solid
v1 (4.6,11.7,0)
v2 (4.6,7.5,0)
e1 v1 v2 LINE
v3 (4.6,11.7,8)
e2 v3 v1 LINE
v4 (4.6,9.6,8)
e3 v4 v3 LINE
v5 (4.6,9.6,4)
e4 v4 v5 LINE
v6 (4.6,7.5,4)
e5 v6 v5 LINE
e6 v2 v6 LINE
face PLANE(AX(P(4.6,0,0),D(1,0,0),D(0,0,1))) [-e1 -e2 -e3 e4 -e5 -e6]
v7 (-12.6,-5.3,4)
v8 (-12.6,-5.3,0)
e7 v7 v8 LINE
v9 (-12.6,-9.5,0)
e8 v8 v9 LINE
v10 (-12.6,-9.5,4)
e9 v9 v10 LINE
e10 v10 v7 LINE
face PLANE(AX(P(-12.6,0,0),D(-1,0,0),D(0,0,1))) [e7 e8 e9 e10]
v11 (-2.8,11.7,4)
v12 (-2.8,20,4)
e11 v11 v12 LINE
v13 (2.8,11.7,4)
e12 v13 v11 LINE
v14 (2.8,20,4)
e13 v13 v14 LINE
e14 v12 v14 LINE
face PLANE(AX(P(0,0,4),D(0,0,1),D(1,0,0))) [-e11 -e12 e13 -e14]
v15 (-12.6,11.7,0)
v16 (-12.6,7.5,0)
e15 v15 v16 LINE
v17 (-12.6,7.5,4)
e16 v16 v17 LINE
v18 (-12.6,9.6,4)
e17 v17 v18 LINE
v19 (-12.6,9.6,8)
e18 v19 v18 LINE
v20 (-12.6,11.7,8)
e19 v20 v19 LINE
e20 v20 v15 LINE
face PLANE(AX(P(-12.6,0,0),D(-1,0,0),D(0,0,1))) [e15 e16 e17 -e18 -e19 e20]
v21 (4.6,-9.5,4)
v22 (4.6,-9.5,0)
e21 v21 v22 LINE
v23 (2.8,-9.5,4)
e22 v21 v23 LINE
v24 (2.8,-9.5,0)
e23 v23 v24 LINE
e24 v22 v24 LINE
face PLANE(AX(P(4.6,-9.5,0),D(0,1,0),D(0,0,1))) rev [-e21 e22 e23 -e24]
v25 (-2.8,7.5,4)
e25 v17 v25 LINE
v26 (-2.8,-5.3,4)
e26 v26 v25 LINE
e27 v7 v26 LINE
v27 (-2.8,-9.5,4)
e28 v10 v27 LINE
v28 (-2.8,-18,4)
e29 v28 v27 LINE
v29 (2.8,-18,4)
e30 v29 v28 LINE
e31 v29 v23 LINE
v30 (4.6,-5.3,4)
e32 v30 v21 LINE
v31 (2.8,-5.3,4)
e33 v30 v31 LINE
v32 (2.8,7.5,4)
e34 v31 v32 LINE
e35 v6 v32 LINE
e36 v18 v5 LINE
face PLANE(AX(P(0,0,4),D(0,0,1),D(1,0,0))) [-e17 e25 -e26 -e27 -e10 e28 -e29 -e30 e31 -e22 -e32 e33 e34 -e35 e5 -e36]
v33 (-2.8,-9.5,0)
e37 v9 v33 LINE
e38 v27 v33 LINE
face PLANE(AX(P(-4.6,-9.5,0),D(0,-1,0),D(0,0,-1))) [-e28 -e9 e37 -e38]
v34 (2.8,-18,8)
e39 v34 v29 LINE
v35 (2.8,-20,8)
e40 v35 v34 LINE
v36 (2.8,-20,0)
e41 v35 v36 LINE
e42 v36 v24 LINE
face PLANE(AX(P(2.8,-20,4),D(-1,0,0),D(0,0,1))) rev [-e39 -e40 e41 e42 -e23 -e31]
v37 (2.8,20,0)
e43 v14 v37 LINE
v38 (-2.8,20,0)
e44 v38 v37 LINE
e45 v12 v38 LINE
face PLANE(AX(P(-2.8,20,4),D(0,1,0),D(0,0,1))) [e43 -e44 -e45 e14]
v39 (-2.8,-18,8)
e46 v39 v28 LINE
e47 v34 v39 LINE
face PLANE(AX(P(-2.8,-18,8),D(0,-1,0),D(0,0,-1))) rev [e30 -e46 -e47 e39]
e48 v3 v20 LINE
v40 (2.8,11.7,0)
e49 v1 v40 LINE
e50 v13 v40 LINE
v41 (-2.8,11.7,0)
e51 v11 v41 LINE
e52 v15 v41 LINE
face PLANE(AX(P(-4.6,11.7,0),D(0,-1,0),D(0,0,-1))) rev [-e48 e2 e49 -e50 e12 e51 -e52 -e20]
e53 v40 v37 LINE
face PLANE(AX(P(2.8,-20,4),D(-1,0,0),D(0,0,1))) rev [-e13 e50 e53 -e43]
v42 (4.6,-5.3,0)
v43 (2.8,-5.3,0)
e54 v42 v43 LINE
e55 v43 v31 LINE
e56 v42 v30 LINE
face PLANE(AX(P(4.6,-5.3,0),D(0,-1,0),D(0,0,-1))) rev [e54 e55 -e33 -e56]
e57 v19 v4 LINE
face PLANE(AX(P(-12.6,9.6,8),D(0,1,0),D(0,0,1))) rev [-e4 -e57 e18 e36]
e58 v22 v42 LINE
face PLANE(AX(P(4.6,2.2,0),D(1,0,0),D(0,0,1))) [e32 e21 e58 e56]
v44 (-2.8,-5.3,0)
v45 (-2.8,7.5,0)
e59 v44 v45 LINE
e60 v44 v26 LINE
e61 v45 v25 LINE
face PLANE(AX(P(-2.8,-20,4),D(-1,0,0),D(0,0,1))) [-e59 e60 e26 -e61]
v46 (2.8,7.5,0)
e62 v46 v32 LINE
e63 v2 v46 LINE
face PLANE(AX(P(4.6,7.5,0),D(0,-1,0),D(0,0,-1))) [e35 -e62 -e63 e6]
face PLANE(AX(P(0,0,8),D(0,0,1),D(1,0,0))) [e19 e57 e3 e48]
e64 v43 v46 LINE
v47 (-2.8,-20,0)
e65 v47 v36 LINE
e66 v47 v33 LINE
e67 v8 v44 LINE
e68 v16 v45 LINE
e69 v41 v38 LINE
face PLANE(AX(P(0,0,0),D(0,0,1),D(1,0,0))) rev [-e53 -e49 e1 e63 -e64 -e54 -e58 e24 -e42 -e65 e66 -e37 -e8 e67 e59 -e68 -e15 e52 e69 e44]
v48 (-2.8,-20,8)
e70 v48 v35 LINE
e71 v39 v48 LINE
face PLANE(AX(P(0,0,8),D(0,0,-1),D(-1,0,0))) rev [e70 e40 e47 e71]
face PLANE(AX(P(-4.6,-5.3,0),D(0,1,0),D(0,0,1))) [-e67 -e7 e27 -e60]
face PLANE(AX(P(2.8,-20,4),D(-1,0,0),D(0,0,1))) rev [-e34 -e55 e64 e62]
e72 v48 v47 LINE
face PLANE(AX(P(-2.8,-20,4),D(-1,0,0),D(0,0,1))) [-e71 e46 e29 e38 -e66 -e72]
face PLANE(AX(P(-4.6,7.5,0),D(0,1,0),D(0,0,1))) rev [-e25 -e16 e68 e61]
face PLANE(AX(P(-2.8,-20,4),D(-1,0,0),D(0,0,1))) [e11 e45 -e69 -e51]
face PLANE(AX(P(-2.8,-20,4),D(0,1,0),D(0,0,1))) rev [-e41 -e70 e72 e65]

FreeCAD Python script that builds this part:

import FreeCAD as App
import Part
import Sketcher
from FreeCAD import Vector

doc = App.newDocument("Part")
body = doc.addObject("PartDesign::Body", "Body")

# Sketch on XY plane
sketch1 = doc.addObject("Sketcher::SketchObject", "Sketch")
body.addObject(sketch1)
sketch1.AttachmentSupport = (doc.XY_Plane, [""])
sketch1.MapMode = "FlatFace"
sketch1.addGeometry(Part.LineSegment(Vector(-3, 20, 0), Vector(-3, -20, 0)), False)
sketch1.addGeometry(Part.LineSegment(Vector(-3, -20, 0), Vector(3, -20, 0)), False)
sketch1.addGeometry(Part.LineSegment(Vector(3, -20, 0), Vector(3, 20, 0)), False)
sketch1.addGeometry(Part.LineSegment(Vector(3, 20, 0), Vector(-3, 20, 0)), False)
sketch1.addConstraint(Sketcher.Constraint("Coincident", 0, 2, 1, 1))
sketch1.addConstraint(Sketcher.Constraint("Coincident", 1, 2, 2, 1))
sketch1.addConstraint(Sketcher.Constraint("Coincident", 2, 2, 3, 1))
sketch1.addConstraint(Sketcher.Constraint("Coincident", 3, 2, 0, 1))
sketch1.addConstraint(Sketcher.Constraint("Vertical", 0))
sketch1.addConstraint(Sketcher.Constraint("Horizontal", 1))
sketch1.addConstraint(Sketcher.Constraint("Vertical", 2))
sketch1.addConstraint(Sketcher.Constraint("Horizontal", 3))
sketch1.addConstraint(Sketcher.Constraint("Symmetric", 0, 2, 2, 2, -1, 1))
sketch1.addConstraint(Sketcher.Constraint("DistanceY", 0, 2, 0, 1, 40.0))
sketch1.addConstraint(Sketcher.Constraint("DistanceX", 1, 1, 1, 2, 5.6))
pad1 = doc.addObject("PartDesign::Pad", "Pad")
body.addObject(pad1)
pad1.Profile = sketch1
pad1.Length = 4

# Sketch on XY plane
sketch2 = doc.addObject("Sketcher::SketchObject", "Sketch001")
body.addObject(sketch2)
sketch2.AttachmentSupport = (doc.XY_Plane, [""])
sketch2.MapMode = "FlatFace"
sketch2.AttachmentOffset = App.Placement(Vector(0, 0, 4), App.Rotation())
sketch2.addGeometry(Part.LineSegment(Vector(-2.8, -18, 0), Vector(-2.8, -20, 0)), False)
sketch2.addGeometry(Part.LineSegment(Vector(-2.8, -20, 0), Vector(2.8, -20, 0)), False)
sketch2.addGeometry(Part.LineSegment(Vector(2.8, -20, 0), Vector(2.8, -18, 0)), False)
sketch2.addGeometry(Part.LineSegment(Vector(2.8, -18, 0), Vector(-2.8, -18, 0)), False)
sketch2.addConstraint(Sketcher.Constraint("Coincident", 0, 2, 1, 1))
sketch2.addConstraint(Sketcher.Constraint("Coincident", 1, 2, 2, 1))
sketch2.addConstraint(Sketcher.Constraint("Coincident", 2, 2, 3, 1))
sketch2.addConstraint(Sketcher.Constraint("Coincident", 3, 2, 0, 1))
sketch2.addConstraint(Sketcher.Constraint("Vertical", 0))
sketch2.addConstraint(Sketcher.Constraint("Horizontal", 1))
sketch2.addConstraint(Sketcher.Constraint("Vertical", 2))
sketch2.addConstraint(Sketcher.Constraint("Horizontal", 3))
sketch2.addConstraint(Sketcher.Constraint("DistanceY", 0, 2, 0, 1, 2.0))
sketch2.addConstraint(Sketcher.Constraint("DistanceX", 1, 1, 1, 2, 5.6))
sketch2.addConstraint(Sketcher.Constraint("DistanceY", 0, 2, -1, 1, 20.0))
sketch2.addConstraint(Sketcher.Constraint("DistanceX", 0, 2, -1, 1, 2.8))
pad2 = doc.addObject("PartDesign::Pad", "Pad001")
body.addObject(pad2)
pad2.Profile = sketch2
pad2.Length = 4

# Sketch on YZ plane
sketch3 = doc.addObject("Sketcher::SketchObject", "Sketch002")
body.addObject(sketch3)
sketch3.AttachmentSupport = (doc.YZ_Plane, [""])
sketch3.MapMode = "FlatFace"
sketch3.AttachmentOffset = App.Placement(Vector(0, 0, -2.8), App.Rotation())
sketch3.addGeometry(Part.LineSegment(Vector(11.7, 0, 0), Vector(7.5, 0, 0)), False)
sketch3.addGeometry(Part.LineSegment(Vector(7.5, 0, 0), Vector(7.5, 4, 0)), False)
sketch3.addGeometry(Part.LineSegment(Vector(7.5, 4, 0), Vector(11.7, 4, 0)), False)
sketch3.addGeometry(Part.LineSegment(Vector(11.7, 4, 0), Vector(11.7, 0, 0)), False)
sketch3.addConstraint(Sketcher.Constraint("Coincident", 0, 2, 1, 1))
sketch3.addConstraint(Sketcher.Constraint("Coincident", 1, 2, 2, 1))
sketch3.addConstraint(Sketcher.Constraint("Coincident", 2, 2, 3, 1))
sketch3.addConstraint(Sketcher.Constraint("Coincident", 3, 2, 0, 1))
sketch3.addConstraint(Sketcher.Constraint("Horizontal", 0))
sketch3.addConstraint(Sketcher.Constraint("Vertical", 1))
sketch3.addConstraint(Sketcher.Constraint("Horizontal", 2))
sketch3.addConstraint(Sketcher.Constraint("Vertical", 3))
sketch3.addConstraint(Sketcher.Constraint("PointOnObject", 0, 2, -1))
sketch3.addConstraint(Sketcher.Constraint("DistanceY", 1, 1, 1, 2, 4.0))
sketch3.addConstraint(Sketcher.Constraint("DistanceX", 0, 2, 0, 1, 4.2))
sketch3.addConstraint(Sketcher.Constraint("DistanceX", -1, 1, 0, 2, 7.5))
pad3 = doc.addObject("PartDesign::Pad", "Pad002")
body.addObject(pad3)
pad3.Profile = sketch3
pad3.Length = 1.8
pad3.Reversed = True
doc.recompute()

mirrored = doc.addObject("PartDesign::Mirrored", "Mirrored")
body.addObject(mirrored)
mirrored.Originals = [pad3]
mirrored.MirrorPlane = (doc.YZ_Plane, [""])
body.Tip = mirrored
doc.recompute()

datumplane = doc.addObject("PartDesign::Plane", "DatumPlane")
body.addObject(datumplane)
datumplane.AttachmentSupport = (doc.XZ_Plane, [""])
datumplane.MapMode = "FlatFace"
datumplane.AttachmentOffset = App.Placement(Vector(0, 0, -1.1), App.Rotation())
mirrored2 = doc.addObject("PartDesign::Mirrored", "Mirrored001")
body.addObject(mirrored2)
mirrored2.Originals = [pad3]
mirrored2.MirrorPlane = (datumplane, [""])
body.Tip = mirrored2

# Sketch on YZ plane
sketch4 = doc.addObject("Sketcher::SketchObject", "Sketch003")
body.addObject(sketch4)
sketch4.AttachmentSupport = (doc.YZ_Plane, [""])
sketch4.MapMode = "FlatFace"
sketch4.AttachmentOffset = App.Placement(Vector(0, 0, 2.8), App.Rotation())
sketch4.addGeometry(Part.LineSegment(Vector(-9.5, 0, 0), Vector(-5.3, 0, 0)), False)
sketch4.addGeometry(Part.LineSegment(Vector(-5.3, 0, 0), Vector(-5.3, 4, 0)), False)
sketch4.addGeometry(Part.LineSegment(Vector(-5.3, 4, 0), Vector(-9.5, 4, 0)), False)
sketch4.addGeometry(Part.LineSegment(Vector(-9.5, 4, 0), Vector(-9.5, 0, 0)), False)
sketch4.addConstraint(Sketcher.Constraint("Coincident", 0, 2, 1, 1))
sketch4.addConstraint(Sketcher.Constraint("Coincident", 1, 2, 2, 1))
sketch4.addConstraint(Sketcher.Constraint("Coincident", 2, 2, 3, 1))
sketch4.addConstraint(Sketcher.Constraint("Coincident", 3, 2, 0, 1))
sketch4.addConstraint(Sketcher.Constraint("Horizontal", 0))
sketch4.addConstraint(Sketcher.Constraint("Vertical", 1))
sketch4.addConstraint(Sketcher.Constraint("Horizontal", 2))
sketch4.addConstraint(Sketcher.Constraint("Vertical", 3))
sketch4.addConstraint(Sketcher.Constraint("PointOnObject", 0, 2, -1))
sketch4.addConstraint(Sketcher.Constraint("DistanceY", 1, 1, 1, 2, 4.0))
sketch4.addConstraint(Sketcher.Constraint("DistanceX", 0, 1, 0, 2, 4.2))
sketch4.addConstraint(Sketcher.Constraint("DistanceX", 0, 2, -1, 1, 5.3))
pad4 = doc.addObject("PartDesign::Pad", "Pad003")
body.addObject(pad4)
pad4.Profile = sketch4
pad4.Length = 1.8

# Sketch on YZ plane
sketch5 = doc.addObject("Sketcher::SketchObject", "Sketch004")
body.addObject(sketch5)
sketch5.AttachmentSupport = (doc.YZ_Plane, [""])
sketch5.MapMode = "FlatFace"
sketch5.AttachmentOffset = App.Placement(Vector(0, 0, -4.6), App.Rotation())
sketch5.addGeometry(Part.LineSegment(Vector(11.7, 0, 0), Vector(7.5, 0, 0)), False)
sketch5.addGeometry(Part.LineSegment(Vector(7.5, 0, 0), Vector(7.5, 4, 0)), False)
sketch5.addGeometry(Part.LineSegment(Vector(7.5, 4, 0), Vector(11.7, 4, 0)), False)
sketch5.addGeometry(Part.LineSegment(Vector(11.7, 4, 0), Vector(11.7, 0, 0)), False)
sketch5.addGeometry(Part.LineSegment(Vector(-5.3, 0, 0), Vector(-9.5, 0, 0)), False)
sketch5.addGeometry(Part.LineSegment(Vector(-9.5, 0, 0), Vector(-9.5, 4, 0)), False)
sketch5.addGeometry(Part.LineSegment(Vector(-9.5, 4, 0), Vector(-5.3, 4, 0)), False)
sketch5.addGeometry(Part.LineSegment(Vector(-5.3, 4, 0), Vector(-5.3, 0, 0)), False)
sketch5.addConstraint(Sketcher.Constraint("Coincident", 0, 2, 1, 1))
sketch5.addConstraint(Sketcher.Constraint("Coincident", 1, 2, 2, 1))
sketch5.addConstraint(Sketcher.Constraint("Coincident", 2, 2, 3, 1))
sketch5.addConstraint(Sketcher.Constraint("Coincident", 3, 2, 0, 1))
sketch5.addConstraint(Sketcher.Constraint("Coincident", 4, 2, 5, 1))
sketch5.addConstraint(Sketcher.Constraint("Coincident", 5, 2, 6, 1))
sketch5.addConstraint(Sketcher.Constraint("Coincident", 6, 2, 7, 1))
sketch5.addConstraint(Sketcher.Constraint("Coincident", 7, 2, 4, 1))
sketch5.addConstraint(Sketcher.Constraint("Horizontal", 0))
sketch5.addConstraint(Sketcher.Constraint("Vertical", 1))
sketch5.addConstraint(Sketcher.Constraint("Horizontal", 2))
sketch5.addConstraint(Sketcher.Constraint("Vertical", 3))
sketch5.addConstraint(Sketcher.Constraint("Horizontal", 4))
sketch5.addConstraint(Sketcher.Constraint("Vertical", 5))
sketch5.addConstraint(Sketcher.Constraint("Horizontal", 6))
sketch5.addConstraint(Sketcher.Constraint("Vertical", 7))
sketch5.addConstraint(Sketcher.Constraint("PointOnObject", 0, 2, -1))
sketch5.addConstraint(Sketcher.Constraint("PointOnObject", 4, 2, -1))
sketch5.addConstraint(Sketcher.Constraint("Horizontal", 2, 2, 5, 2))
sketch5.addConstraint(Sketcher.Constraint("Equal", 2, 4))
sketch5.addConstraint(Sketcher.Constraint("DistanceY", 1, 1, 1, 2, 4.0))
sketch5.addConstraint(Sketcher.Constraint("DistanceX", 0, 2, 0, 1, 4.2))
sketch5.addConstraint(Sketcher.Constraint("DistanceX", 4, 2, 0, 2, 17.0))
sketch5.addConstraint(Sketcher.Constraint("DistanceX", -1, 1, 0, 2, 7.5))
pad5 = doc.addObject("PartDesign::Pad", "Pad004")
body.addObject(pad5)
pad5.Profile = sketch5
pad5.Length = 8
pad5.Reversed = True

# Sketch on XY plane
sketch6 = doc.addObject("Sketcher::SketchObject", "Sketch005")
body.addObject(sketch6)
sketch6.AttachmentSupport = (doc.XY_Plane, [""])
sketch6.MapMode = "FlatFace"
sketch6.AttachmentOffset = App.Placement(Vector(0, 0, 4), App.Rotation())
sketch6.addGeometry(Part.LineSegment(Vector(-12.6, 11.7, 0), Vector(-12.6, 9.6, 0)), False)
sketch6.addGeometry(Part.LineSegment(Vector(-12.6, 9.6, 0), Vector(4.6, 9.6, 0)), False)
sketch6.addGeometry(Part.LineSegment(Vector(4.6, 9.6, 0), Vector(4.6, 11.7, 0)), False)
sketch6.addGeometry(Part.LineSegment(Vector(4.6, 11.7, 0), Vector(-12.6, 11.7, 0)), False)
sketch6.addConstraint(Sketcher.Constraint("Coincident", 0, 2, 1, 1))
sketch6.addConstraint(Sketcher.Constraint("Coincident", 1, 2, 2, 1))
sketch6.addConstraint(Sketcher.Constraint("Coincident", 2, 2, 3, 1))
sketch6.addConstraint(Sketcher.Constraint("Coincident", 3, 2, 0, 1))
sketch6.addConstraint(Sketcher.Constraint("Vertical", 0))
sketch6.addConstraint(Sketcher.Constraint("Horizontal", 1))
sketch6.addConstraint(Sketcher.Constraint("Vertical", 2))
sketch6.addConstraint(Sketcher.Constraint("Horizontal", 3))
sketch6.addConstraint(Sketcher.Constraint("DistanceX", 1, 1, 1, 2, 17.2))
sketch6.addConstraint(Sketcher.Constraint("DistanceY", 0, 2, 0, 1, 2.1))
sketch6.addConstraint(Sketcher.Constraint("DistanceX", 0, 2, -1, 1, 12.6))
sketch6.addConstraint(Sketcher.Constraint("DistanceY", -1, 1, 0, 2, 9.6))
pad6 = doc.addObject("PartDesign::Pad", "Pad005")
body.addObject(pad6)
pad6.Profile = sketch6
pad6.Length = 4

doc.recompute()
